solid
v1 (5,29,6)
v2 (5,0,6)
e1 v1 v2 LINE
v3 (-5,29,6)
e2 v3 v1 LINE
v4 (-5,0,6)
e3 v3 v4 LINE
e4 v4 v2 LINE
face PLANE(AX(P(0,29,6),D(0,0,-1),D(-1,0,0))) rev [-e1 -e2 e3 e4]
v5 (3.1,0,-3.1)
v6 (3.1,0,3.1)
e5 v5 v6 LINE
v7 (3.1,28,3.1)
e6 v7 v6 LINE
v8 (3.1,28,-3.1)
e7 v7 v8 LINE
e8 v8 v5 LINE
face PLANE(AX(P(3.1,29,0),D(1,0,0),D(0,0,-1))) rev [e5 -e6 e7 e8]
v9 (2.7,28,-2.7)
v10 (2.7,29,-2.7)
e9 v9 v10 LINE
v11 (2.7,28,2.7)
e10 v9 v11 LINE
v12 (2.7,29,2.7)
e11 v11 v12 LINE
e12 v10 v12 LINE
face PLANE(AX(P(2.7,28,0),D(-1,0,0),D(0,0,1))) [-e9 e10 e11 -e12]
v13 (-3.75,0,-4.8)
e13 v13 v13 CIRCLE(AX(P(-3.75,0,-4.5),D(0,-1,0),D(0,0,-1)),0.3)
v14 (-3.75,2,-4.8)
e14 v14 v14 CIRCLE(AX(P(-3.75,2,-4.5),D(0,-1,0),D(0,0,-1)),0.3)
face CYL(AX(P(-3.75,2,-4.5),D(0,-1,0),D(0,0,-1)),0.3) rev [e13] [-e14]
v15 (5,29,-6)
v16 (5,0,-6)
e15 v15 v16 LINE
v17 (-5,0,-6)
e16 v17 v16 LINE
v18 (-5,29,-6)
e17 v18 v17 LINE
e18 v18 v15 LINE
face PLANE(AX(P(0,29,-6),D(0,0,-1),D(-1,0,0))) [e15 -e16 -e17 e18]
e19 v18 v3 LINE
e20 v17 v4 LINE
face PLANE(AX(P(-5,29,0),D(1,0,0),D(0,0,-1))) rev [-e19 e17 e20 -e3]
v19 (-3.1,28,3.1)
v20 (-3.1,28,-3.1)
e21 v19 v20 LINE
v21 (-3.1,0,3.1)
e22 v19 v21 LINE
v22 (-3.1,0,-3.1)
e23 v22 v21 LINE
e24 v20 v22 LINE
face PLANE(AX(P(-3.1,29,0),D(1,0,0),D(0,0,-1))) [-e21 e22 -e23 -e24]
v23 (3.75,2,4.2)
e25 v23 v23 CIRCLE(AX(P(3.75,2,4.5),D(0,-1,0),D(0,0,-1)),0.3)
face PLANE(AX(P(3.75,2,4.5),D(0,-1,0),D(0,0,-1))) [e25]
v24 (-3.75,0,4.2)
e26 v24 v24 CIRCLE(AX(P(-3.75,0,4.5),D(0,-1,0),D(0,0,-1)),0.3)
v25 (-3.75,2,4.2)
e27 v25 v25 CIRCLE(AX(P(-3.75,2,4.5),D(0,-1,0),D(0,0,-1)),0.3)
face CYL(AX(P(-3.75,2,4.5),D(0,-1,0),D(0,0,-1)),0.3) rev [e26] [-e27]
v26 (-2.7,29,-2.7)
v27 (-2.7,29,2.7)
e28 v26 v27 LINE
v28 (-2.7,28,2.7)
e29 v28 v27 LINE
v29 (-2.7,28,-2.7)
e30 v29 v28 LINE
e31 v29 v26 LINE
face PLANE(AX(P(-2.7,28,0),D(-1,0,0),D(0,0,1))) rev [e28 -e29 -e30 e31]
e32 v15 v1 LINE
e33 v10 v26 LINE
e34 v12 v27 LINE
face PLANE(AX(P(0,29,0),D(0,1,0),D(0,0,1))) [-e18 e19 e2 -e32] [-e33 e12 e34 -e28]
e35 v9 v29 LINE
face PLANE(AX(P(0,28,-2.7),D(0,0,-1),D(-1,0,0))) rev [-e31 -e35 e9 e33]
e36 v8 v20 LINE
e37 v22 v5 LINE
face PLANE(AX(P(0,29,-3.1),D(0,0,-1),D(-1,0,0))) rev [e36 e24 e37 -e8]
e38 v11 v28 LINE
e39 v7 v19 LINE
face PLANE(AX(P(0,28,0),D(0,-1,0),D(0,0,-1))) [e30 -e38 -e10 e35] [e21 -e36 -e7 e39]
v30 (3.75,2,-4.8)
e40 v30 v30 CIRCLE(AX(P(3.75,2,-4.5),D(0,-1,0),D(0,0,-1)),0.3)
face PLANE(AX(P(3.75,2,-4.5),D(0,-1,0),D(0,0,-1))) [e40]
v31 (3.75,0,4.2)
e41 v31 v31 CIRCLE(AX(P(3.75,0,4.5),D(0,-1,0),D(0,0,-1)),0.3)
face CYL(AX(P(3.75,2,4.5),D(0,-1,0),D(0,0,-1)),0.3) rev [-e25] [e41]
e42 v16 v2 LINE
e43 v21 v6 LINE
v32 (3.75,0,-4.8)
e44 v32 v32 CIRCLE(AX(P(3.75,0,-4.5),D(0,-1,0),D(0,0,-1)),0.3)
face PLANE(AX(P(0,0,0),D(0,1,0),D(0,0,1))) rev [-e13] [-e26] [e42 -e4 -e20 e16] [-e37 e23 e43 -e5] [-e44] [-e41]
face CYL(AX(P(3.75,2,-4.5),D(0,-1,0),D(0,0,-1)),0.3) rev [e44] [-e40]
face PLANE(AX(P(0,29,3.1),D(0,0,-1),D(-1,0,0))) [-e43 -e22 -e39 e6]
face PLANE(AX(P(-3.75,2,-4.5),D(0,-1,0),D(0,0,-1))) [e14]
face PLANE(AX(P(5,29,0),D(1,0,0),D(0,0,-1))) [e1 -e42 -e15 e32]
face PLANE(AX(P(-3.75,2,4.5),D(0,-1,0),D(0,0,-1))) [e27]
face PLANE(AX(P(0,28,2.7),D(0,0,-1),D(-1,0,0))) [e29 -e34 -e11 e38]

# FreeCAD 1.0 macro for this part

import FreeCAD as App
import Part
import Sketcher
from FreeCAD import Vector

doc = App.newDocument("Part")
params = doc.addObject("Spreadsheet::Sheet", "Params")
for row, (alias, value) in enumerate([
    ("sketch1_width", "10 mm"),
    ("sketch1_height", "12 mm"),
    ("sketch1_width2", "6.2 mm"),
    ("pad1_length", "29 mm"),
    ("sketch2_width", "10 mm"),
    ("sketch2_height", "12 mm"),
    ("sketch2_width2", "5.4 mm"),
    ("pad2_length", "1 mm"),
    ("sketch3_diameter", "0.6 mm"),
    ("pocket1_length", "2 mm"),
], start=1):
    params.set(f"A{row}", alias)
    params.set(f"B{row}", "=" + value)
    params.setAlias(f"B{row}", alias)

body = doc.addObject("PartDesign::Body", "Body")

sketch1 = body.newObject("Sketcher::SketchObject", "Sketch")
sketch1.AttachmentSupport = (doc.getObject("XZ_Plane"), [""])
sketch1.MapMode = "FlatFace"
sketch1.addGeometry(Part.LineSegment(Vector(-5, -6, 0), Vector(-5, 6, 0)), False)
sketch1.addGeometry(Part.LineSegment(Vector(-5, 6, 0), Vector(5, 6, 0)), False)
sketch1.addGeometry(Part.LineSegment(Vector(5, 6, 0), Vector(5, -6, 0)), False)
sketch1.addGeometry(Part.LineSegment(Vector(5, -6, 0), Vector(-5, -6, 0)), False)
sketch1.addGeometry(Part.LineSegment(Vector(3, 3, 0), Vector(-3, 3, 0)), False)
sketch1.addGeometry(Part.LineSegment(Vector(-3, 3, 0), Vector(-3, -3, 0)), False)
sketch1.addGeometry(Part.LineSegment(Vector(-3, -3, 0), Vector(3, -3, 0)), False)
sketch1.addGeometry(Part.LineSegment(Vector(3, -3, 0), Vector(3, 3, 0)), False)
sketch1.addConstraint(Sketcher.Constraint("Coincident", 0, 2, 1, 1))
sketch1.addConstraint(Sketcher.Constraint("Coincident", 1, 2, 2, 1))
sketch1.addConstraint(Sketcher.Constraint("Coincident", 2, 2, 3, 1))
sketch1.addConstraint(Sketcher.Constraint("Coincident", 3, 2, 0, 1))
sketch1.addConstraint(Sketcher.Constraint("Coincident", 4, 2, 5, 1))
sketch1.addConstraint(Sketcher.Constraint("Coincident", 5, 2, 6, 1))
sketch1.addConstraint(Sketcher.Constraint("Coincident", 6, 2, 7, 1))
sketch1.addConstraint(Sketcher.Constraint("Coincident", 7, 2, 4, 1))
sketch1.addConstraint(Sketcher.Constraint("Vertical", 0))
sketch1.addConstraint(Sketcher.Constraint("Horizontal", 1))
sketch1.addConstraint(Sketcher.Constraint("Vertical", 2))
sketch1.addConstraint(Sketcher.Constraint("Horizontal", 3))
sketch1.addConstraint(Sketcher.Constraint("Horizontal", 4))
sketch1.addConstraint(Sketcher.Constraint("Vertical", 5))
sketch1.addConstraint(Sketcher.Constraint("Horizontal", 6))
sketch1.addConstraint(Sketcher.Constraint("Vertical", 7))
sketch1.addConstraint(Sketcher.Constraint("Symmetric", 0, 2, 2, 2, -1, 1))
sketch1.addConstraint(Sketcher.Constraint("Symmetric", 4, 2, 6, 2, -1, 1))
sketch1.addConstraint(Sketcher.Constraint("Equal", 6, 5))
sketch1.addConstraint(Sketcher.Constraint("DistanceX", 1, 1, 1, 2, 10.0))
sketch1.addConstraint(Sketcher.Constraint("DistanceY", 0, 1, 0, 2, 12.0))
sketch1.addConstraint(Sketcher.Constraint("DistanceX", 4, 2, 4, 1, 6.2))
sketch1.setExpression("Constraints[19]", "Params.sketch1_width")
sketch1.setExpression("Constraints[20]", "Params.sketch1_height")
sketch1.setExpression("Constraints[21]", "Params.sketch1_width2")
pad1 = body.newObject("PartDesign::Pad", "Pad")
pad1.Profile = sketch1
pad1.setExpression("Length", "Params.pad1_length")
pad1.Reversed = True

sketch2 = body.newObject("Sketcher::SketchObject", "Sketch001")
sketch2.AttachmentSupport = (doc.getObject("XZ_Plane"), [""])
sketch2.MapMode = "FlatFace"
sketch2.AttachmentOffset = App.Placement(Vector(0, 0, -29), App.Rotation())
sketch2.addGeometry(Part.LineSegment(Vector(-5, -6, 0), Vector(-5, 6, 0)), False)
sketch2.addGeometry(Part.LineSegment(Vector(-5, 6, 0), Vector(5, 6, 0)), False)
sketch2.addGeometry(Part.LineSegment(Vector(5, 6, 0), Vector(5, -6, 0)), False)
sketch2.addGeometry(Part.LineSegment(Vector(5, -6, 0), Vector(-5, -6, 0)), False)
sketch2.addGeometry(Part.LineSegment(Vector(3, 3, 0), Vector(-3, 3, 0)), False)
sketch2.addGeometry(Part.LineSegment(Vector(-3, 3, 0), Vector(-3, -3, 0)), False)
sketch2.addGeometry(Part.LineSegment(Vector(-3, -3, 0), Vector(3, -3, 0)), False)
sketch2.addGeometry(Part.LineSegment(Vector(3, -3, 0), Vector(3, 3, 0)), False)
sketch2.addConstraint(Sketcher.Constraint("Coincident", 0, 2, 1, 1))
sketch2.addConstraint(Sketcher.Constraint("Coincident", 1, 2, 2, 1))
sketch2.addConstraint(Sketcher.Constraint("Coincident", 2, 2, 3, 1))
sketch2.addConstraint(Sketcher.Constraint("Coincident", 3, 2, 0, 1))
sketch2.addConstraint(Sketcher.Constraint("Coincident", 4, 2, 5, 1))
sketch2.addConstraint(Sketcher.Constraint("Coincident", 5, 2, 6, 1))
sketch2.addConstraint(Sketcher.Constraint("Coincident", 6, 2, 7, 1))
sketch2.addConstraint(Sketcher.Constraint("Coincident", 7, 2, 4, 1))
sketch2.addConstraint(Sketcher.Constraint("Vertical", 0))
sketch2.addConstraint(Sketcher.Constraint("Horizontal", 1))
sketch2.addConstraint(Sketcher.Constraint("Vertical", 2))
sketch2.addConstraint(Sketcher.Constraint("Horizontal", 3))
sketch2.addConstraint(Sketcher.Constraint("Horizontal", 4))
sketch2.addConstraint(Sketcher.Constraint("Vertical", 5))
sketch2.addConstraint(Sketcher.Constraint("Horizontal", 6))
sketch2.addConstraint(Sketcher.Constraint("Vertical", 7))
sketch2.addConstraint(Sketcher.Constraint("Symmetric", 0, 2, 2, 2, -1, 1))
sketch2.addConstraint(Sketcher.Constraint("Symmetric", 4, 2, 6, 2, -1, 1))
sketch2.addConstraint(Sketcher.Constraint("Equal", 6, 5))
sketch2.addConstraint(Sketcher.Constraint("DistanceX", 1, 1, 1, 2, 10.0))
sketch2.addConstraint(Sketcher.Constraint("DistanceY", 0, 1, 0, 2, 12.0))
sketch2.addConstraint(Sketcher.Constraint("DistanceX", 4, 2, 4, 1, 5.4))
sketch2.setExpression("Constraints[19]", "Params.sketch2_width")
sketch2.setExpression("Constraints[20]", "Params.sketch2_height")
sketch2.setExpression("Constraints[21]", "Params.sketch2_width2")
pad2 = body.newObject("PartDesign::Pad", "Pad001")
pad2.Profile = sketch2
pad2.setExpression("Length", "Params.pad2_length")

sketch3 = body.newObject("Sketcher::SketchObject", "Sketch002")
sketch3.AttachmentSupport = (doc.getObject("XZ_Plane"), [""])
sketch3.MapMode = "FlatFace"
sketch3.addGeometry(Part.Circle(Vector(-3.75, 4.5, 0), Vector(0, 0, 1), 0.3), False)
sketch3.addGeometry(Part.Circle(Vector(3.75, -4.5, 0), Vector(0, 0, 1), 0.3), False)
sketch3.addGeometry(Part.Circle(Vector(3.75, 4.5, 0), Vector(0, 0, 1), 0.3), False)
sketch3.addGeometry(Part.Circle(Vector(-3.75, -4.5, 0), Vector(0, 0, 1), 0.3), False)
sketch3.addConstraint(Sketcher.Constraint("Equal", 0, 1))
sketch3.addConstraint(Sketcher.Constraint("Equal", 1, 2))
sketch3.addConstraint(Sketcher.Constraint("Equal", 2, 3))
sketch3.addConstraint(Sketcher.Constraint("Symmetric", 0, 3, 1, 3, -1, 1))
sketch3.addConstraint(Sketcher.Constraint("Symmetric", 2, 3, 3, 3, -1, 1))
sketch3.addConstraint(Sketcher.Constraint("Symmetric", 0, 3, 2, 3, -2))
sketch3.addConstraint(Sketcher.Constraint("Diameter", 0, 0.6))
sketch3.addConstraint(Sketcher.Constraint("DistanceY", 1, 3, 0, 3, 9.0))
sketch3.addConstraint(Sketcher.Constraint("DistanceX", 0, 3, 1, 3, 7.5))
sketch3.setExpression("Constraints[6]", "Params.sketch3_diameter")
pocket1 = body.newObject("PartDesign::Pocket", "Pocket")
pocket1.Profile = sketch3
pocket1.setExpression("Length", "Params.pocket1_length")

doc.recompute()
